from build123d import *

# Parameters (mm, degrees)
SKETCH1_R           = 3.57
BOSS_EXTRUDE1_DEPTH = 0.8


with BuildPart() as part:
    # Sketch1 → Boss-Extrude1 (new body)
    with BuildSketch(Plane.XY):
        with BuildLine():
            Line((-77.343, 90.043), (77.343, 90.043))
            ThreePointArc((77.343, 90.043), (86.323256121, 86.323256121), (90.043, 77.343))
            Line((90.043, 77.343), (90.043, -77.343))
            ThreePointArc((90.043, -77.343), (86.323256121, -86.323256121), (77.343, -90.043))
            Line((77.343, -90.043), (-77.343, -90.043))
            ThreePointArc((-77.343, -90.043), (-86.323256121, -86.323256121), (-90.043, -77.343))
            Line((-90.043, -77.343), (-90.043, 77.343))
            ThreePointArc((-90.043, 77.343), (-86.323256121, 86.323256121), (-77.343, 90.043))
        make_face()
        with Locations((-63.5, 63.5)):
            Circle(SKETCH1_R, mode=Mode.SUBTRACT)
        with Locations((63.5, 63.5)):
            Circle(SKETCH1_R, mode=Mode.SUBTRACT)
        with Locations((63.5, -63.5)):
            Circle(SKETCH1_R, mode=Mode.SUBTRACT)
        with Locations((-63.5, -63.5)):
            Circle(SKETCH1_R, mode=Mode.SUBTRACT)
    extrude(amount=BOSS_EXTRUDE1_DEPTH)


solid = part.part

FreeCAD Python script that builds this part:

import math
import FreeCAD as App
import Part
import Sketcher
from FreeCAD import Vector
Q = App.Units.Quantity

doc = App.newDocument("Part")
body = doc.addObject("PartDesign::Body", "Body")

# Sketch on XY plane
sketch1 = body.newObject("Sketcher::SketchObject", "Sketch")
sketch1.AttachmentSupport = (doc.getObject("XY_Plane"), [""])
sketch1.MapMode = "FlatFace"
sketch1.addGeometry([
    Part.LineSegment(Vector(77.3, 90, 0), Vector(-77.3, 90, 0)),  # 0
    Part.ArcOfCircle(Part.Circle(Vector(-77.3, 77.3, 0), Vector(0, 0, 1), 12.7), math.radians(90), math.radians(180)),  # 1
    Part.LineSegment(Vector(-90, 77.3, 0), Vector(-90, -77.3, 0)),  # 2
    Part.ArcOfCircle(Part.Circle(Vector(-77.3, -77.3, 0), Vector(0, 0, 1), 12.7), math.radians(180), math.radians(270)),  # 3
    Part.LineSegment(Vector(-77.3, -90, 0), Vector(77.3, -90, 0)),  # 4
    Part.ArcOfCircle(Part.Circle(Vector(77.3, -77.3, 0), Vector(0, 0, 1), 12.7), math.radians(-90), math.radians(0)),  # 5
    Part.LineSegment(Vector(90, -77.3, 0), Vector(90, 77.3, 0)),  # 6
    Part.ArcOfCircle(Part.Circle(Vector(77.3, 77.3, 0), Vector(0, 0, 1), 12.7), math.radians(0), math.radians(90)),  # 7
    Part.Circle(Vector(63.5, -63.5, 0), Vector(0, 0, 1), 3.6),  # 8
    Part.Circle(Vector(-63.5, -63.5, 0), Vector(0, 0, 1), 3.6),  # 9
    Part.Circle(Vector(63.5, 63.5, 0), Vector(0, 0, 1), 3.6),  # 10
    Part.Circle(Vector(-63.5, 63.5, 0), Vector(0, 0, 1), 3.6),  # 11
], False)
sketch1.addConstraint([
    Sketcher.Constraint("Tangent", 0, 2, 1, 1),
    Sketcher.Constraint("Tangent", 1, 2, 2, 1),
    Sketcher.Constraint("Tangent", 2, 2, 3, 1),
    Sketcher.Constraint("Tangent", 3, 2, 4, 1),
    Sketcher.Constraint("Tangent", 4, 2, 5, 1),
    Sketcher.Constraint("Tangent", 5, 2, 6, 1),
    Sketcher.Constraint("Tangent", 6, 2, 7, 1),
    Sketcher.Constraint("Tangent", 7, 2, 0, 1),
    Sketcher.Constraint("Horizontal", 0),
    Sketcher.Constraint("Vertical", 2),
    Sketcher.Constraint("Horizontal", 4),
    Sketcher.Constraint("Vertical", 6),
    Sketcher.Constraint("Equal", 1, 3),
    Sketcher.Constraint("Equal", 3, 5),
    Sketcher.Constraint("Equal", 5, 7),
    Sketcher.Constraint("Equal", 8, 9),
    Sketcher.Constraint("Equal", 9, 10),
    Sketcher.Constraint("Equal", 10, 11),
    Sketcher.Constraint("Symmetric", 1, 3, 5, 3, -1, 1),
    Sketcher.Constraint("Symmetric", 9, 3, 10, 3, -1, 1),
    Sketcher.Constraint("Symmetric", 8, 3, 11, 3, -1, 1),
    Sketcher.Constraint("Symmetric", 8, 3, 9, 3, -2),
    Sketcher.Constraint("Equal", 4, 2),
    Sketcher.Constraint("Radius", 1, Q("0.5 in")),
    Sketcher.Constraint("DistanceX", 9, 3, 8, 3, Q("5 in")),
    Sketcher.Constraint("DistanceY", 8, 3, 10, 3, Q("5 in")),
    Sketcher.Constraint("DistanceX", 0, 2, 0, 1, Q("6.09 in")),
    Sketcher.Constraint("Diameter", 8, 7.14),
])
pad1 = body.newObject("PartDesign::Pad", "Pad")
pad1.Profile = sketch1
pad1.Length = 0.8

doc.recompute()
